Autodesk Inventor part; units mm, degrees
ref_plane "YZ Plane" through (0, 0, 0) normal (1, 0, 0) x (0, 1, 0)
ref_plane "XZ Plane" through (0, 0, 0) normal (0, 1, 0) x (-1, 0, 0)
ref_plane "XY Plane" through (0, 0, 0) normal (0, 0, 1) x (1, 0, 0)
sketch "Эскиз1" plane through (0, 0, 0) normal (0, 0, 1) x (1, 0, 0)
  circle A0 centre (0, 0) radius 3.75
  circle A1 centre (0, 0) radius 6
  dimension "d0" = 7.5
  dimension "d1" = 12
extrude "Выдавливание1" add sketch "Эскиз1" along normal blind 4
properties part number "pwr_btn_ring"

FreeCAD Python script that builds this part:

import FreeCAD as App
import Part
import Sketcher
Q = App.Units.Quantity

doc = App.newDocument("Part")
body = doc.addObject("PartDesign::Body", "Body")

sketch1 = body.newObject("Sketcher::SketchObject", "Sketch")
sketch1.AttachmentSupport = (doc.getObject("XY_Plane"), [""])
sketch1.MapMode = "FlatFace"
sketch1.addGeometry(Part.Circle(App.Vector(0, 0, 0), App.Vector(0, 0, 1), 6), False)
sketch1.addGeometry(Part.Circle(App.Vector(0, 0, 0), App.Vector(0, 0, 1), 3.75), False)
sketch1.addConstraint(Sketcher.Constraint("Coincident", 0, 3, -1, 1))
sketch1.addConstraint(Sketcher.Constraint("Coincident", 1, 3, -1, 1))
sketch1.addConstraint(Sketcher.Constraint("Diameter", 0, Q("12 mm")))
sketch1.addConstraint(Sketcher.Constraint("Diameter", 1, Q("7.5 mm")))
pad1 = body.newObject("PartDesign::Pad", "Pad")
pad1.Profile = sketch1
pad1.Length = 4

doc.recompute()
